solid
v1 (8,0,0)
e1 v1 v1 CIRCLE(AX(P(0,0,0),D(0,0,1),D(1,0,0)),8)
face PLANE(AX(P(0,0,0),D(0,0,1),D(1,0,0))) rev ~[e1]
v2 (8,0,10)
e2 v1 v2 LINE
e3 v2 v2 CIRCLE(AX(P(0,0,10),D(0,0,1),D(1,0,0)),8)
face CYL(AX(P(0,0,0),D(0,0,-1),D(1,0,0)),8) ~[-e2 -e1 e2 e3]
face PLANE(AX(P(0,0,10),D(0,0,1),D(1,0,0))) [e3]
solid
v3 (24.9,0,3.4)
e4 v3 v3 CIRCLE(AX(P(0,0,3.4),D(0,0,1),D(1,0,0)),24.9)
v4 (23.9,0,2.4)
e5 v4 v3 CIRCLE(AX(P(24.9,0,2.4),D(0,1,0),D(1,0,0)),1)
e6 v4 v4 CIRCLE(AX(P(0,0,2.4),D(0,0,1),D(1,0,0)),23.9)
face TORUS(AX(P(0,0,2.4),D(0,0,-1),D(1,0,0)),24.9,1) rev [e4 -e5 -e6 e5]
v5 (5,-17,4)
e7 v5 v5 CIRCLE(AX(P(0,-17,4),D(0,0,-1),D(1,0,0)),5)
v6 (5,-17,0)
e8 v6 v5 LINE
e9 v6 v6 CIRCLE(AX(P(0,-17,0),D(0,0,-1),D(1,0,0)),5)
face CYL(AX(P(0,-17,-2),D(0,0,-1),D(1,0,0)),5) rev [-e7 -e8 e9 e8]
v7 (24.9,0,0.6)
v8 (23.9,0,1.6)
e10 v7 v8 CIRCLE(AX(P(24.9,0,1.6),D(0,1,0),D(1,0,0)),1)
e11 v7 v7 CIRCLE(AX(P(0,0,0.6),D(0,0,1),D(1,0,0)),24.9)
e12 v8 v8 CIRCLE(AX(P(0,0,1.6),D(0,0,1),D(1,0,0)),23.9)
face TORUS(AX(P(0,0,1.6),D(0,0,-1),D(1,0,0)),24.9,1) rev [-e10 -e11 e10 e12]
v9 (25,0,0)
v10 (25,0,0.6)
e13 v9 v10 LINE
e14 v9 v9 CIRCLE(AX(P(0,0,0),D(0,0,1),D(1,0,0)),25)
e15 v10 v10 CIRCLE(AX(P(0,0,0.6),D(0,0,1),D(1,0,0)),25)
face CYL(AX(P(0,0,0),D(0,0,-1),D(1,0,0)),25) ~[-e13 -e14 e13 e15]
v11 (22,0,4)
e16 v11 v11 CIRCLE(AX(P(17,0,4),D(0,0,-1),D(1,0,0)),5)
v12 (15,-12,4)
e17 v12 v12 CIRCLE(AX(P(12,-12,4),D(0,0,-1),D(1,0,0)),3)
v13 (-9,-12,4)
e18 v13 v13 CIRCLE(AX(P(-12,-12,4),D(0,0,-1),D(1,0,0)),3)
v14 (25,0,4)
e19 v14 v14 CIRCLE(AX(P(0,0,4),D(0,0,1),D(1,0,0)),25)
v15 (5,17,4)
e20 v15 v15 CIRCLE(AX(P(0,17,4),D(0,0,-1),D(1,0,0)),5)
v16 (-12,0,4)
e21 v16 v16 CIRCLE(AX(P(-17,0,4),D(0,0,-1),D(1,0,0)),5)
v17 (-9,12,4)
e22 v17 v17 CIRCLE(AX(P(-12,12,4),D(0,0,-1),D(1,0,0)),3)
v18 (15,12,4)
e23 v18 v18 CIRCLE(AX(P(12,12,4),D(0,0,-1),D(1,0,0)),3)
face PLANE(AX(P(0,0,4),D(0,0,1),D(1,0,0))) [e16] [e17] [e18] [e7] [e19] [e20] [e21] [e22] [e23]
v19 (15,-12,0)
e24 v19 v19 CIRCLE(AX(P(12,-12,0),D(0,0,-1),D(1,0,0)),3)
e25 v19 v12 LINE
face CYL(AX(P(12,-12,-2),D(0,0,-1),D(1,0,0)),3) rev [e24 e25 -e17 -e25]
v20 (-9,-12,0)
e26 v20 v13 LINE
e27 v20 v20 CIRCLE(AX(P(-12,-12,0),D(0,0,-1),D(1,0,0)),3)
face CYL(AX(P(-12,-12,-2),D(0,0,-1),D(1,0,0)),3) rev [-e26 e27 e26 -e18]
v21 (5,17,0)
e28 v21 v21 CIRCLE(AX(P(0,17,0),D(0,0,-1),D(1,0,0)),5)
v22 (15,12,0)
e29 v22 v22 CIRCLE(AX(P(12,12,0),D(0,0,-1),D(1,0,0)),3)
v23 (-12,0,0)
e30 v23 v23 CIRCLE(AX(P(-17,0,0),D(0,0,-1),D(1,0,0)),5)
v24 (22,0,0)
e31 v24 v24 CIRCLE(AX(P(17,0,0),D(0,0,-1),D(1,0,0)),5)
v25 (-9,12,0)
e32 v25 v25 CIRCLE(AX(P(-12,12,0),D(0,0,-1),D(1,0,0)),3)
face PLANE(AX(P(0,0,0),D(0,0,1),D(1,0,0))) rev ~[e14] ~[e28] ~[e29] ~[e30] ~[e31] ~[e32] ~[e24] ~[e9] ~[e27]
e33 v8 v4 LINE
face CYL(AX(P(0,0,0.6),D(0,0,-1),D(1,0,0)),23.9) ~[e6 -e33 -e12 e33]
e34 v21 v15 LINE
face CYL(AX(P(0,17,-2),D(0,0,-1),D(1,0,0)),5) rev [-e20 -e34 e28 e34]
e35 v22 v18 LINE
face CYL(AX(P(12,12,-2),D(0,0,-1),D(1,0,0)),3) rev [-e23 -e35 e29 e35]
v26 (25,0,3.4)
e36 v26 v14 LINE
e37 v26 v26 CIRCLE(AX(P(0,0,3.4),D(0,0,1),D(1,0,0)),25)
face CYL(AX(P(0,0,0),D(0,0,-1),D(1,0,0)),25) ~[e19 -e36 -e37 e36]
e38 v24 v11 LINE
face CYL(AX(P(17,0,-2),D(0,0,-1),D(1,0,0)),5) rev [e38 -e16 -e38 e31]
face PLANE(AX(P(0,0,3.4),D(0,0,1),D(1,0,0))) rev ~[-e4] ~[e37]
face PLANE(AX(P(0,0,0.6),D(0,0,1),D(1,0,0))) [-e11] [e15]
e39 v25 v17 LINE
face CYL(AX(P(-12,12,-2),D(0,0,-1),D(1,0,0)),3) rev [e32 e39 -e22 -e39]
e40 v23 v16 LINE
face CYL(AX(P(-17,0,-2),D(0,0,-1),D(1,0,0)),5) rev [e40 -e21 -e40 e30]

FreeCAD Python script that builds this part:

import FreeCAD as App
import Part
import Sketcher
from FreeCAD import Vector


def edges_at(feature, points):
    """Names of the edges that pass closest to the given points."""
    edges = feature.Shape.Edges
    near = lambda p: min(range(len(edges)), key=lambda i: edges[i].distToShape(Part.Vertex(*p))[0])
    return sorted({f"Edge{near(p) + 1}" for p in points})

doc = App.newDocument("Part")
body = doc.addObject("PartDesign::Body", "Body")

# Sketch on XY plane
sketch1 = body.newObject("Sketcher::SketchObject", "Sketch")
sketch1.AttachmentSupport = (doc.getObject("XY_Plane"), [""])
sketch1.MapMode = "FlatFace"
sketch1.addGeometry(Part.Circle(Vector(0, 0, 0), Vector(0, 0, 1), 8), False)
sketch1.addConstraint([
    Sketcher.Constraint("Coincident", 0, 3, -1, 1),
    Sketcher.Constraint("Diameter", 0, 16.0),
])
pad1 = body.newObject("PartDesign::Pad", "Pad")
pad1.Profile = sketch1
pad1.Length = 10
body2 = doc.addObject("PartDesign::Body", "Body001")

# Sketch on XY plane
sketch2 = body2.newObject("Sketcher::SketchObject", "Sketch001")
sketch2.AttachmentSupport = (doc.getObject("XY_Plane001"), [""])
sketch2.MapMode = "FlatFace"
sketch2.AttachmentOffset = App.Placement(Vector(0, 0, 0.6), App.Rotation())
sketch2.addGeometry(Part.Circle(Vector(0, 0, 0), Vector(0, 0, 1), 24), False)
sketch2.addConstraint([
    Sketcher.Constraint("Coincident", 0, 3, -1, 1),
    Sketcher.Constraint("Diameter", 0, 47.8),
])
pad2 = body2.newObject("PartDesign::Pad", "Pad001")
pad2.Profile = sketch2
pad2.Length = 2.8
body3 = doc.addObject("PartDesign::Body", "Body002")

# Sketch on XY plane
sketch3 = body3.newObject("Sketcher::SketchObject", "Sketch002")
sketch3.AttachmentSupport = (doc.getObject("XY_Plane002"), [""])
sketch3.MapMode = "FlatFace"
sketch3.AttachmentOffset = App.Placement(Vector(0, 0, 0.6), App.Rotation())
sketch3.addGeometry(Part.Circle(Vector(0, 0, 0), Vector(0, 0, 1), 25), False)
sketch3.addConstraint([
    Sketcher.Constraint("Coincident", 0, 3, -1, 1),
    Sketcher.Constraint("Diameter", 0, 50.0),
])
pad3 = body3.newObject("PartDesign::Pad", "Pad002")
pad3.Profile = sketch3
pad3.Length = 2.8
doc.recompute()

boolean = body3.newObject("PartDesign::Boolean", "Boolean")
boolean.Type = "Cut"
boolean.addObjects([body2])
body4 = doc.addObject("PartDesign::Body", "Body003")

# Sketch on XY plane
sketch4 = body4.newObject("Sketcher::SketchObject", "Sketch003")
sketch4.AttachmentSupport = (doc.getObject("XY_Plane003"), [""])
sketch4.MapMode = "FlatFace"
sketch4.AttachmentOffset = App.Placement(Vector(0, 0, -2), App.Rotation())
sketch4.addGeometry(Part.Circle(Vector(12, 12, 0), Vector(0, 0, 1), 3), False)
sketch4.addConstraint([
    Sketcher.Constraint("Diameter", 0, 6.0),
    Sketcher.Constraint("DistanceX", -1, 1, 0, 3, 12.0),
    Sketcher.Constraint("DistanceY", -1, 1, 0, 3, 12.0),
])
pad4 = body4.newObject("PartDesign::Pad", "Pad003")
pad4.Profile = sketch4
pad4.Length = 10
body5 = doc.addObject("PartDesign::Body", "Body004")

# Sketch on XY plane
sketch5 = body5.newObject("Sketcher::SketchObject", "Sketch004")
sketch5.AttachmentSupport = (doc.getObject("XY_Plane004"), [""])
sketch5.MapMode = "FlatFace"
sketch5.AttachmentOffset = App.Placement(Vector(0, 0, -2), App.Rotation())
sketch5.addGeometry(Part.Circle(Vector(17, 0, 0), Vector(0, 0, 1), 5), False)
sketch5.addConstraint([
    Sketcher.Constraint("PointOnObject", 0, 3, -1),
    Sketcher.Constraint("Diameter", 0, 10.0),
    Sketcher.Constraint("DistanceX", -1, 1, 0, 3, 17.0),
])
pad5 = body5.newObject("PartDesign::Pad", "Pad004")
pad5.Profile = sketch5
pad5.Length = 15
body6 = doc.addObject("PartDesign::Body", "Body005")

# Sketch on XY plane
sketch6 = body6.newObject("Sketcher::SketchObject", "Sketch005")
sketch6.AttachmentSupport = (doc.getObject("XY_Plane005"), [""])
sketch6.MapMode = "FlatFace"
sketch6.AttachmentOffset = App.Placement(Vector(0, 0, -2), App.Rotation())
sketch6.addGeometry(Part.Circle(Vector(12, -12, 0), Vector(0, 0, 1), 3), False)
sketch6.addConstraint([
    Sketcher.Constraint("Diameter", 0, 6.0),
    Sketcher.Constraint("DistanceX", -1, 1, 0, 3, 12.0),
    Sketcher.Constraint("DistanceY", 0, 3, -1, 1, 12.0),
])
pad6 = body6.newObject("PartDesign::Pad", "Pad005")
pad6.Profile = sketch6
pad6.Length = 10
body7 = doc.addObject("PartDesign::Body", "Body006")

# Sketch on XY plane
sketch7 = body7.newObject("Sketcher::SketchObject", "Sketch006")
sketch7.AttachmentSupport = (doc.getObject("XY_Plane006"), [""])
sketch7.MapMode = "FlatFace"
sketch7.AttachmentOffset = App.Placement(Vector(0, 0, -2), App.Rotation())
sketch7.addGeometry(Part.Circle(Vector(0, -17, 0), Vector(0, 0, 1), 5), False)
sketch7.addConstraint([
    Sketcher.Constraint("PointOnObject", 0, 3, -2),
    Sketcher.Constraint("Diameter", 0, 10.0),
    Sketcher.Constraint("DistanceY", 0, 3, -1, 1, 17.0),
])
pad7 = body7.newObject("PartDesign::Pad", "Pad006")
pad7.Profile = sketch7
pad7.Length = 15
body8 = doc.addObject("PartDesign::Body", "Body007")

# Sketch on XY plane
sketch8 = body8.newObject("Sketcher::SketchObject", "Sketch007")
sketch8.AttachmentSupport = (doc.getObject("XY_Plane007"), [""])
sketch8.MapMode = "FlatFace"
sketch8.AttachmentOffset = App.Placement(Vector(0, 0, -2), App.Rotation())
sketch8.addGeometry(Part.Circle(Vector(-12, -12, 0), Vector(0, 0, 1), 3), False)
sketch8.addConstraint([
    Sketcher.Constraint("Diameter", 0, 6.0),
    Sketcher.Constraint("DistanceX", 0, 3, -1, 1, 12.0),
    Sketcher.Constraint("DistanceY", 0, 3, -1, 1, 12.0),
])
pad8 = body8.newObject("PartDesign::Pad", "Pad007")
pad8.Profile = sketch8
pad8.Length = 10
body9 = doc.addObject("PartDesign::Body", "Body008")

# Sketch on XY plane
sketch9 = body9.newObject("Sketcher::SketchObject", "Sketch008")
sketch9.AttachmentSupport = (doc.getObject("XY_Plane008"), [""])
sketch9.MapMode = "FlatFace"
sketch9.AttachmentOffset = App.Placement(Vector(0, 0, -2), App.Rotation())
sketch9.addGeometry(Part.Circle(Vector(-17, 0, 0), Vector(0, 0, 1), 5), False)
sketch9.addConstraint([
    Sketcher.Constraint("PointOnObject", 0, 3, -1),
    Sketcher.Constraint("Diameter", 0, 10.0),
    Sketcher.Constraint("DistanceX", 0, 3, -1, 1, 17.0),
])
pad9 = body9.newObject("PartDesign::Pad", "Pad008")
pad9.Profile = sketch9
pad9.Length = 15
body10 = doc.addObject("PartDesign::Body", "Body009")

# Sketch on XY plane
sketch10 = body10.newObject("Sketcher::SketchObject", "Sketch009")
sketch10.AttachmentSupport = (doc.getObject("XY_Plane009"), [""])
sketch10.MapMode = "FlatFace"
sketch10.AttachmentOffset = App.Placement(Vector(0, 0, -2), App.Rotation())
sketch10.addGeometry(Part.Circle(Vector(-12, 12, 0), Vector(0, 0, 1), 3), False)
sketch10.addConstraint([
    Sketcher.Constraint("Diameter", 0, 6.0),
    Sketcher.Constraint("DistanceX", 0, 3, -1, 1, 12.0),
    Sketcher.Constraint("DistanceY", -1, 1, 0, 3, 12.0),
])
pad10 = body10.newObject("PartDesign::Pad", "Pad009")
pad10.Profile = sketch10
pad10.Length = 10
body11 = doc.addObject("PartDesign::Body", "Body010")

# Sketch on XY plane
sketch11 = body11.newObject("Sketcher::SketchObject", "Sketch010")
sketch11.AttachmentSupport = (doc.getObject("XY_Plane010"), [""])
sketch11.MapMode = "FlatFace"
sketch11.AttachmentOffset = App.Placement(Vector(0, 0, -2), App.Rotation())
sketch11.addGeometry(Part.Circle(Vector(0, 17, 0), Vector(0, 0, 1), 5), False)
sketch11.addConstraint([
    Sketcher.Constraint("PointOnObject", 0, 3, -2),
    Sketcher.Constraint("Diameter", 0, 10.0),
    Sketcher.Constraint("DistanceY", -1, 1, 0, 3, 17.0),
])
pad11 = body11.newObject("PartDesign::Pad", "Pad010")
pad11.Profile = sketch11
pad11.Length = 15
body12 = doc.addObject("PartDesign::Body", "Body011")

# Sketch on XY plane
sketch12 = body12.newObject("Sketcher::SketchObject", "Sketch011")
sketch12.AttachmentSupport = (doc.getObject("XY_Plane011"), [""])
sketch12.MapMode = "FlatFace"
sketch12.addGeometry(Part.Circle(Vector(0, 0, 0), Vector(0, 0, 1), 25), False)
sketch12.addConstraint([
    Sketcher.Constraint("Coincident", 0, 3, -1, 1),
    Sketcher.Constraint("Diameter", 0, 50.0),
])
pad12 = body12.newObject("PartDesign::Pad", "Pad011")
pad12.Profile = sketch12
pad12.Length = 4
doc.recompute()

boolean2 = body12.newObject("PartDesign::Boolean", "Boolean001")
boolean2.Type = "Cut"
boolean2.addObjects([body11])
doc.recompute()

boolean3 = body12.newObject("PartDesign::Boolean", "Boolean002")
boolean3.Type = "Cut"
boolean3.addObjects([body10])
doc.recompute()

boolean4 = body12.newObject("PartDesign::Boolean", "Boolean003")
boolean4.Type = "Cut"
boolean4.addObjects([body9])
doc.recompute()

boolean5 = body12.newObject("PartDesign::Boolean", "Boolean004")
boolean5.Type = "Cut"
boolean5.addObjects([body8])
doc.recompute()

boolean6 = body12.newObject("PartDesign::Boolean", "Boolean005")
boolean6.Type = "Cut"
boolean6.addObjects([body7])
doc.recompute()

boolean7 = body12.newObject("PartDesign::Boolean", "Boolean006")
boolean7.Type = "Cut"
boolean7.addObjects([body6])
doc.recompute()

boolean8 = body12.newObject("PartDesign::Boolean", "Boolean007")
boolean8.Type = "Cut"
boolean8.addObjects([body5])
doc.recompute()

boolean9 = body12.newObject("PartDesign::Boolean", "Boolean008")
boolean9.Type = "Cut"
boolean9.addObjects([body4])
doc.recompute()

boolean10 = body12.newObject("PartDesign::Boolean", "Boolean009")
boolean10.Type = "Cut"
boolean10.addObjects([body3])
doc.recompute()

fillet = body12.newObject("PartDesign::Fillet", "Fillet")
fillet.Base = (boolean10, edges_at(boolean10, [(-23.9, 0, 3.4), (-23.9, 0, 0.6)]))
fillet.Radius = 1

doc.recompute()
